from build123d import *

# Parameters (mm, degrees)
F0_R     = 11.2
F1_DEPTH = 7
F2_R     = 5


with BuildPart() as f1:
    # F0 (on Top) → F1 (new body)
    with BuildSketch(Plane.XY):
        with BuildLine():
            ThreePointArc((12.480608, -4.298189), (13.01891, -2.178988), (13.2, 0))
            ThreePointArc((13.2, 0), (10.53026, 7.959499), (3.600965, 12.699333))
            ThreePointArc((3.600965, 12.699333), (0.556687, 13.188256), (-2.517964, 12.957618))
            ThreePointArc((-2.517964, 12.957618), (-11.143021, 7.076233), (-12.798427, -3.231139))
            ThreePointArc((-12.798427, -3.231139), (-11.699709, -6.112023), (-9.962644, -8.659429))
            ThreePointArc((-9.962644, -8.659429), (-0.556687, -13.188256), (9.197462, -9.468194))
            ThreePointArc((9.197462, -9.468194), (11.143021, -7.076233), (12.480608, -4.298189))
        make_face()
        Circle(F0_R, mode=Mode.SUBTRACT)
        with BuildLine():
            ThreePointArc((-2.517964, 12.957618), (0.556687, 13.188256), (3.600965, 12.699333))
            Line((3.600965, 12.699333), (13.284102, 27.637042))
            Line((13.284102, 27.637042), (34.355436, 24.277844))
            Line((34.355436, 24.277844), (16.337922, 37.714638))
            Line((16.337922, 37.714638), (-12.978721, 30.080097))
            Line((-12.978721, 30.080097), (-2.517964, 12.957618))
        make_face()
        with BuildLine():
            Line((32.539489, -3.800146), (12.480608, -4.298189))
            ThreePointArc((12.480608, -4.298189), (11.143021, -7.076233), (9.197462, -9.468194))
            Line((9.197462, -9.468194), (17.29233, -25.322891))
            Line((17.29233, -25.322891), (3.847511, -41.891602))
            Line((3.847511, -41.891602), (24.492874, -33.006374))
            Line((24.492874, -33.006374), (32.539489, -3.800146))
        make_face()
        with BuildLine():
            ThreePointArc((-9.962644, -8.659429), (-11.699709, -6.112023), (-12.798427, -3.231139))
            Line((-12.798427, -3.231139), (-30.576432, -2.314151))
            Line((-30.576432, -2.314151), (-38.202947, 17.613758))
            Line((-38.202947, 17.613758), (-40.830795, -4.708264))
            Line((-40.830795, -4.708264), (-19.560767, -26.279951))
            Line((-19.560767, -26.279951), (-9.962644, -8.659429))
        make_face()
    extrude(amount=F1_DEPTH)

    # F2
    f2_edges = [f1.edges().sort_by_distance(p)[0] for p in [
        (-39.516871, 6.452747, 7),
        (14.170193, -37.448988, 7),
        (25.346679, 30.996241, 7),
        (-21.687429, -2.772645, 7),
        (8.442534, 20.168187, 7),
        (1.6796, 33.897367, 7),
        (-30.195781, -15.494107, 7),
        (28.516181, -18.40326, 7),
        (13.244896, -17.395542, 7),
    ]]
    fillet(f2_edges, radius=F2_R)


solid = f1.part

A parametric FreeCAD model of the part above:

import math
import FreeCAD as App
import Part
import Sketcher

V = App.Vector


def edges_at(feature, points):
    """Names of the edges that pass closest to the given points."""
    edges = feature.Shape.Edges
    near = lambda p: min(range(len(edges)), key=lambda i: edges[i].distToShape(Part.Vertex(*p))[0])
    return sorted({f"Edge{near(p) + 1}" for p in points})

doc = App.newDocument("Part")
params = doc.addObject("Spreadsheet::Sheet", "Params")
for row, (alias, value) in enumerate([
    ("sketch1_diameter", "22.4 mm"),
    ("sketch1_radius", "13.200001 mm"),
    ("sketch1_radius2", "13.200001 mm"),
    ("sketch1_radius3", "13.2 mm"),
    ("pad1_length", "7 mm"),
    ("fillet_radius", "5 mm"),
], start=1):
    params.set(f"A{row}", alias)
    params.set(f"B{row}", "=" + value)
    params.setAlias(f"B{row}", alias)

body = doc.addObject("PartDesign::Body", "Body")

# Sketch on XY plane
sketch1 = doc.addObject("Sketcher::SketchObject", "Sketch")
body.addObject(sketch1)
sketch1.AttachmentSupport = (doc.XY_Plane, [""])
sketch1.MapMode = "FlatFace"
sketch1.addGeometry([
    Part.ArcOfCircle(Part.Circle(V(0.000011, -0.000002, 0), V(0, 0, 1), 13.199989), math.radians(-19.00317), math.radians(0.00001)),  # 0
    Part.ArcOfCircle(Part.Circle(V(-0.000001, 0, 0), V(0, 0, 1), 13.200001), math.radians(0.000001), math.radians(74.169024)),  # 1
    Part.LineSegment(V(3.600965, 12.699333, 0), V(13.284102, 27.637042, 0)),  # 2
    Part.LineSegment(V(13.284102, 27.637042, 0), V(34.355436, 24.277844, 0)),  # 3
    Part.LineSegment(V(34.355436, 24.277844, 0), V(16.337922, 37.714638, 0)),  # 4
    Part.LineSegment(V(16.337922, 37.714638, 0), V(-12.978721, 30.080097, 0)),  # 5
    Part.LineSegment(V(-12.978721, 30.080097, 0), V(-2.517964, 12.957618, 0)),  # 6
    Part.ArcOfCircle(Part.Circle(V(0.000001, 0, 0), V(0, 0, 1), 13.200001), math.radians(100.996844), math.radians(194.169023)),  # 7
    Part.LineSegment(V(-12.798427, -3.231139, 0), V(-30.576432, -2.314151, 0)),  # 8
    Part.LineSegment(V(-30.576432, -2.314151, 0), V(-38.202947, 17.613758, 0)),  # 9
    Part.LineSegment(V(-38.202947, 17.613758, 0), V(-40.830795, -4.708264, 0)),  # 10
    Part.LineSegment(V(-40.830795, -4.708264, 0), V(-19.560767, -26.279951, 0)),  # 11
    Part.LineSegment(V(-19.560767, -26.279951, 0), V(-9.962644, -8.659429, 0)),  # 12
    Part.ArcOfCircle(Part.Circle(V(0, 0, 0), V(0, 0, 1), 13.2), math.radians(-139.003164), math.radians(-45.830977)),  # 13
    Part.LineSegment(V(9.197462, -9.468194, 0), V(17.29233, -25.322891, 0)),  # 14
    Part.LineSegment(V(17.29233, -25.322891, 0), V(3.847511, -41.891602, 0)),  # 15
    Part.LineSegment(V(3.847511, -41.891602, 0), V(24.492874, -33.006374, 0)),  # 16
    Part.LineSegment(V(24.492874, -33.006374, 0), V(32.539489, -3.800146, 0)),  # 17
    Part.LineSegment(V(32.539489, -3.800146, 0), V(12.480608, -4.298189, 0)),  # 18
    Part.Circle(V(0, 0, 0), V(0, 0, 1), 11.2),  # 19
], False)
sketch1.addConstraint([
    Sketcher.Constraint("Coincident", 0, 2, 1, 1),
    Sketcher.Constraint("Coincident", 1, 2, 2, 1),
    Sketcher.Constraint("Coincident", 2, 2, 3, 1),
    Sketcher.Constraint("Coincident", 3, 2, 4, 1),
    Sketcher.Constraint("Coincident", 4, 2, 5, 1),
    Sketcher.Constraint("Coincident", 5, 2, 6, 1),
    Sketcher.Constraint("Coincident", 6, 2, 7, 1),
    Sketcher.Constraint("Coincident", 7, 2, 8, 1),
    Sketcher.Constraint("Coincident", 8, 2, 9, 1),
    Sketcher.Constraint("Coincident", 9, 2, 10, 1),
    Sketcher.Constraint("Coincident", 10, 2, 11, 1),
    Sketcher.Constraint("Coincident", 11, 2, 12, 1),
    Sketcher.Constraint("Coincident", 12, 2, 13, 1),
    Sketcher.Constraint("Coincident", 13, 2, 14, 1),
    Sketcher.Constraint("Coincident", 14, 2, 15, 1),
    Sketcher.Constraint("Coincident", 15, 2, 16, 1),
    Sketcher.Constraint("Coincident", 16, 2, 17, 1),
    Sketcher.Constraint("Coincident", 17, 2, 18, 1),
    Sketcher.Constraint("Coincident", 18, 2, 0, 1),
    Sketcher.Constraint("Coincident", 1, 3, -1, 1),
    Sketcher.Constraint("Coincident", 7, 3, -1, 1),
    Sketcher.Constraint("Coincident", 13, 3, -1, 1),
    Sketcher.Constraint("Coincident", 19, 3, -1, 1),
    Sketcher.Constraint("Coincident", 7, 3, 0, 3),
    Sketcher.Constraint("PointOnObject", 0, 2, -1),
    Sketcher.Constraint("Diameter", 19, 22.4),
    Sketcher.Constraint("Radius", 1, 13.200001),
    Sketcher.Constraint("Radius", 7, 13.200001),
    Sketcher.Constraint("Radius", 13, 13.2),
    Sketcher.Constraint("DistanceX", 7, 3, 2, 2, 13.284101),
    Sketcher.Constraint("DistanceY", 11, 2, 8, 2, 23.9658),
    Sketcher.Constraint("DistanceX", 0, 3, 15, 2, 3.8475),
    Sketcher.Constraint("DistanceY", 15, 2, 0, 3, 41.8916),
    Sketcher.Constraint("Distance", 4, 22.476171),
    Sketcher.Constraint("Distance", 5, 30.294418),
    Sketcher.Constraint("Distance", 8, 17.801638),
    Sketcher.Constraint("Distance", 10, 22.476171),
    Sketcher.Constraint("Distance", 11, 30.294418),
    Sketcher.Constraint("Distance", 16, 22.476172),
    Sketcher.Constraint("Distance", 17, 30.294418),
    Sketcher.Constraint("DistanceX", -1, 1, 4, 2, 16.337922),
    Sketcher.Constraint("DistanceX", 5, 2, -1, 1, 12.978721),
    Sketcher.Constraint("DistanceY", 7, 2, -1, 1, 3.231139),
    Sketcher.Constraint("DistanceY", 8, 2, -1, 1, 2.314151),
    Sketcher.Constraint("DistanceY", -1, 1, 9, 2, 17.613758),
    Sketcher.Constraint("DistanceY", 12, 2, -1, 1, 8.659429),
    Sketcher.Constraint("DistanceX", -1, 1, 14, 2, 17.29233),
    Sketcher.Constraint("DistanceY", 14, 2, -1, 1, 25.322891),
    Sketcher.Constraint("DistanceX", -1, 1, 17, 2, 32.539489),
    Sketcher.Constraint("DistanceY", 18, 2, -1, 1, 4.298189),
    Sketcher.Constraint("DistanceY", 1, 2, 2, 2, 14.937709),
    Sketcher.Constraint("DistanceX", 1, 2, 3, 2, 30.754471),
    Sketcher.Constraint("DistanceY", 1, 2, 3, 2, 11.578511),
    Sketcher.Constraint("DistanceY", 0, 3, 4, 2, 37.71464),
    Sketcher.Constraint("DistanceX", 6, 2, 1, 2, 6.118929),
    Sketcher.Constraint("DistanceX", 9, 2, 7, 2, 25.40452),
    Sketcher.Constraint("DistanceX", 10, 2, 9, 2, 2.627848),
    Sketcher.Constraint("DistanceX", 0, 3, 13, 2, 9.197451),
    Sketcher.Constraint("DistanceX", 13, 2, 16, 2, 15.295412),
])
sketch1.setExpression("Constraints[25]", "Params.sketch1_diameter")
sketch1.setExpression("Constraints[26]", "Params.sketch1_radius")
sketch1.setExpression("Constraints[27]", "Params.sketch1_radius2")
sketch1.setExpression("Constraints[28]", "Params.sketch1_radius3")
pad1 = doc.addObject("PartDesign::Pad", "Pad")
body.addObject(pad1)
pad1.Profile = sketch1
pad1.setExpression("Length", "Params.pad1_length")
doc.recompute()

fillet = doc.addObject("PartDesign::Fillet", "Fillet")
body.addObject(fillet)
fillet.Base = (pad1, edges_at(pad1, [
    (-39.517, 6.453, 7),
    (14.17, -37.449, 7),
    (25.347, 30.996, 7),
    (-21.687, -2.773, 7),
    (8.443, 20.168, 7),
    (1.68, 33.897, 7),
    (-30.196, -15.494, 7),
    (28.516, -18.403, 7),
    (13.245, -17.396, 7),
]))
fillet.setExpression("Radius", "Params.fillet_radius")

doc.recompute()
